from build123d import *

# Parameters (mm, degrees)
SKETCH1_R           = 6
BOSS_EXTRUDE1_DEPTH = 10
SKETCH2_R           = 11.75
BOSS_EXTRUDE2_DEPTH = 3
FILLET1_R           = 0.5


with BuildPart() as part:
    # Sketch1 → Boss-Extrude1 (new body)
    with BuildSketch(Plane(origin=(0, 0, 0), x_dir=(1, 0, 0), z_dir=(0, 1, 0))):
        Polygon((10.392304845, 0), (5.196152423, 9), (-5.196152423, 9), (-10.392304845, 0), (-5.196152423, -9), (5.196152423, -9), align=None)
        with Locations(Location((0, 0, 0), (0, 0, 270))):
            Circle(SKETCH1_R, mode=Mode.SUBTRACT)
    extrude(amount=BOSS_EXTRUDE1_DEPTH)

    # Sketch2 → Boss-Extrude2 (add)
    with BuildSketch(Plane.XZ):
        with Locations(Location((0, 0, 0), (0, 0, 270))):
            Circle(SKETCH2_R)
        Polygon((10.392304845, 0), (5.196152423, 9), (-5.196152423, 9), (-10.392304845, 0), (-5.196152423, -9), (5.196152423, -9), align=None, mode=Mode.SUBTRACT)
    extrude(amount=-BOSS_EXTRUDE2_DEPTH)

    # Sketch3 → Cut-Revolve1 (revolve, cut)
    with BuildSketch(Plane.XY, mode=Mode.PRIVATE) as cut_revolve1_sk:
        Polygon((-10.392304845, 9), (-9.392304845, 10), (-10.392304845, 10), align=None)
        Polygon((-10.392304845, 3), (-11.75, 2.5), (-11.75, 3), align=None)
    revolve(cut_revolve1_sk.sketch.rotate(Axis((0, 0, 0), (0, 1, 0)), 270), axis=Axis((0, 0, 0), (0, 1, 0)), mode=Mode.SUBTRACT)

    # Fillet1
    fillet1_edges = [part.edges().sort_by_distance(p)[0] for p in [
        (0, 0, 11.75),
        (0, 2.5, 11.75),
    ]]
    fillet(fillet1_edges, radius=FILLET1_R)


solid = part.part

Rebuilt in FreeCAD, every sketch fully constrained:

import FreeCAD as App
import Part
import Sketcher
from FreeCAD import Vector
Q = App.Units.Quantity


def edges_at(feature, points):
    """Names of the edges that pass closest to the given points."""
    edges = feature.Shape.Edges
    near = lambda p: min(range(len(edges)), key=lambda i: edges[i].distToShape(Part.Vertex(*p))[0])
    return sorted({f"Edge{near(p) + 1}" for p in points})

doc = App.newDocument("Part")
body = doc.addObject("PartDesign::Body", "Body")

# Sketch on XZ plane
sketch1 = body.newObject("Sketcher::SketchObject", "Sketch")
sketch1.AttachmentSupport = (doc.getObject("XZ_Plane"), [""])
sketch1.MapMode = "FlatFace"
sketch1.addGeometry(Part.LineSegment(Vector(10.392305, 0, 0), Vector(5.196152, -9, 0)), False)
sketch1.addGeometry(Part.LineSegment(Vector(5.196152, -9, 0), Vector(-5.196152, -9, 0)), False)
sketch1.addGeometry(Part.LineSegment(Vector(-5.196152, -9, 0), Vector(-10.392305, 0, 0)), False)
sketch1.addGeometry(Part.LineSegment(Vector(-10.392305, 0, 0), Vector(-5.196152, 9, 0)), False)
sketch1.addGeometry(Part.LineSegment(Vector(-5.196152, 9, 0), Vector(5.196152, 9, 0)), False)
sketch1.addGeometry(Part.LineSegment(Vector(5.196152, 9, 0), Vector(10.392305, 0, 0)), False)
sketch1.addGeometry(Part.Circle(Vector(0, 0, 0), Vector(0, 0, 1), 6), False)
sketch1.addConstraint(Sketcher.Constraint("Coincident", 0, 2, 1, 1))
sketch1.addConstraint(Sketcher.Constraint("Coincident", 1, 2, 2, 1))
sketch1.addConstraint(Sketcher.Constraint("Coincident", 2, 2, 3, 1))
sketch1.addConstraint(Sketcher.Constraint("Coincident", 3, 2, 4, 1))
sketch1.addConstraint(Sketcher.Constraint("Coincident", 4, 2, 5, 1))
sketch1.addConstraint(Sketcher.Constraint("Coincident", 5, 2, 0, 1))
sketch1.addConstraint(Sketcher.Constraint("Horizontal", 1))
sketch1.addConstraint(Sketcher.Constraint("Horizontal", 4))
sketch1.addConstraint(Sketcher.Constraint("Coincident", 6, 3, -1, 1))
sketch1.addConstraint(Sketcher.Constraint("Symmetric", 0, 2, 3, 2, -1, 1))
sketch1.addConstraint(Sketcher.Constraint("Symmetric", 2, 2, 5, 2, -1, 1))
sketch1.addConstraint(Sketcher.Constraint("PointOnObject", 2, 2, -1))
sketch1.addConstraint(Sketcher.Constraint("Parallel", 2, 5))
sketch1.addConstraint(Sketcher.Constraint("Vertical", 1, 2, 3, 2))
sketch1.addConstraint(Sketcher.Constraint("Diameter", 6, 12.0))
sketch1.addConstraint(Sketcher.Constraint("Angle", 0, Q("-120 deg")))
sketch1.addConstraint(Sketcher.Constraint("DistanceY", 0, 2, -1, 1, 9.0))
sketch1.addConstraint(Sketcher.Constraint("DistanceX", 1, 2, 1, 1, 10.392305))
pad1 = body.newObject("PartDesign::Pad", "Pad")
pad1.Profile = sketch1
pad1.Length = 10
pad1.Reversed = True

# Sketch on XZ plane
sketch2 = body.newObject("Sketcher::SketchObject", "Sketch001")
sketch2.AttachmentSupport = (doc.getObject("XZ_Plane"), [""])
sketch2.MapMode = "FlatFace"
sketch2.addGeometry(Part.Circle(Vector(0, 0, 0), Vector(0, 0, 1), 11.75), False)
sketch2.addGeometry(Part.LineSegment(Vector(5.196152, 9, 0), Vector(10.392305, 0, 0)), False)
sketch2.addGeometry(Part.LineSegment(Vector(10.392305, 0, 0), Vector(5.196152, -9, 0)), False)
sketch2.addGeometry(Part.LineSegment(Vector(5.196152, -9, 0), Vector(-5.196152, -9, 0)), False)
sketch2.addGeometry(Part.LineSegment(Vector(-5.196152, -9, 0), Vector(-10.392305, 0, 0)), False)
sketch2.addGeometry(Part.LineSegment(Vector(-10.392305, 0, 0), Vector(-5.196152, 9, 0)), False)
sketch2.addGeometry(Part.LineSegment(Vector(-5.196152, 9, 0), Vector(5.196152, 9, 0)), False)
sketch2.addConstraint(Sketcher.Constraint("Coincident", 1, 2, 2, 1))
sketch2.addConstraint(Sketcher.Constraint("Coincident", 2, 2, 3, 1))
sketch2.addConstraint(Sketcher.Constraint("Coincident", 3, 2, 4, 1))
sketch2.addConstraint(Sketcher.Constraint("Coincident", 4, 2, 5, 1))
sketch2.addConstraint(Sketcher.Constraint("Coincident", 5, 2, 6, 1))
sketch2.addConstraint(Sketcher.Constraint("Coincident", 6, 2, 1, 1))
sketch2.addConstraint(Sketcher.Constraint("Horizontal", 3))
sketch2.addConstraint(Sketcher.Constraint("Horizontal", 6))
sketch2.addConstraint(Sketcher.Constraint("Coincident", 0, 3, -1, 1))
sketch2.addConstraint(Sketcher.Constraint("Symmetric", 1, 2, 4, 2, -1, 1))
sketch2.addConstraint(Sketcher.Constraint("Symmetric", 2, 2, 5, 2, -1, 1))
sketch2.addConstraint(Sketcher.Constraint("PointOnObject", 1, 2, -1))
sketch2.addConstraint(Sketcher.Constraint("Parallel", 1, 4))
sketch2.addConstraint(Sketcher.Constraint("Vertical", 3, 2, 5, 2))
sketch2.addConstraint(Sketcher.Constraint("Diameter", 0, 23.5))
sketch2.addConstraint(Sketcher.Constraint("Angle", 1, Q("-60 deg")))
sketch2.addConstraint(Sketcher.Constraint("DistanceY", 2, 2, -1, 1, 9.0))
sketch2.addConstraint(Sketcher.Constraint("DistanceX", 3, 2, 3, 1, 10.392305))
pad2 = body.newObject("PartDesign::Pad", "Pad001")
pad2.Profile = sketch2
pad2.Length = 3
pad2.Reversed = True

# Sketch on XY plane
sketch3 = body.newObject("Sketcher::SketchObject", "Sketch002")
sketch3.AttachmentSupport = (doc.getObject("XY_Plane"), [""])
sketch3.MapMode = "FlatFace"
sketch3.addGeometry(Part.LineSegment(Vector(-10.392305, 9, 0), Vector(-9.392305, 10, 0)), False)
sketch3.addGeometry(Part.LineSegment(Vector(-9.392305, 10, 0), Vector(-10.392305, 10, 0)), False)
sketch3.addGeometry(Part.LineSegment(Vector(-10.392305, 10, 0), Vector(-10.392305, 9, 0)), False)
sketch3.addGeometry(Part.LineSegment(Vector(-11.75, 2.5, 0), Vector(-10.392305, 3, 0)), False)
sketch3.addGeometry(Part.LineSegment(Vector(-10.392305, 3, 0), Vector(-11.75, 3, 0)), False)
sketch3.addGeometry(Part.LineSegment(Vector(-11.75, 3, 0), Vector(-11.75, 2.5, 0)), False)
sketch3.addConstraint(Sketcher.Constraint("Coincident", 0, 2, 1, 1))
sketch3.addConstraint(Sketcher.Constraint("Coincident", 1, 2, 2, 1))
sketch3.addConstraint(Sketcher.Constraint("Coincident", 2, 2, 0, 1))
sketch3.addConstraint(Sketcher.Constraint("Coincident", 3, 2, 4, 1))
sketch3.addConstraint(Sketcher.Constraint("Coincident", 4, 2, 5, 1))
sketch3.addConstraint(Sketcher.Constraint("Coincident", 5, 2, 3, 1))
sketch3.addConstraint(Sketcher.Constraint("Horizontal", 1))
sketch3.addConstraint(Sketcher.Constraint("Vertical", 2))
sketch3.addConstraint(Sketcher.Constraint("Horizontal", 4))
sketch3.addConstraint(Sketcher.Constraint("Vertical", 5))
sketch3.addConstraint(Sketcher.Constraint("Vertical", 2, 2, 3, 2))
sketch3.addConstraint(Sketcher.Constraint("Equal", 1, 2))
sketch3.addConstraint(Sketcher.Constraint("DistanceX", 1, 2, 1, 1, 1.0))
sketch3.addConstraint(Sketcher.Constraint("DistanceY", 5, 2, 5, 1, 0.5))
sketch3.addConstraint(Sketcher.Constraint("DistanceY", -1, 1, 0, 2, 10.0))
sketch3.addConstraint(Sketcher.Constraint("DistanceY", -1, 1, 3, 2, 3.0))
sketch3.addConstraint(Sketcher.Constraint("DistanceX", 4, 2, -1, 1, 11.75))
sketch3.addConstraint(Sketcher.Constraint("DistanceX", 4, 2, 4, 1, 1.357695))
groove = body.newObject("PartDesign::Groove", "Groove")
groove.Profile = sketch3
groove.ReferenceAxis = (sketch3, ["V_Axis"])
groove.Angle = 360
doc.recompute()

fillet = body.newObject("PartDesign::Fillet", "Fillet")
fillet.Base = (groove, edges_at(groove, [(0, 0, 11.75), (0, 2.5, 11.75)]))
fillet.Radius = 0.5

doc.recompute()
